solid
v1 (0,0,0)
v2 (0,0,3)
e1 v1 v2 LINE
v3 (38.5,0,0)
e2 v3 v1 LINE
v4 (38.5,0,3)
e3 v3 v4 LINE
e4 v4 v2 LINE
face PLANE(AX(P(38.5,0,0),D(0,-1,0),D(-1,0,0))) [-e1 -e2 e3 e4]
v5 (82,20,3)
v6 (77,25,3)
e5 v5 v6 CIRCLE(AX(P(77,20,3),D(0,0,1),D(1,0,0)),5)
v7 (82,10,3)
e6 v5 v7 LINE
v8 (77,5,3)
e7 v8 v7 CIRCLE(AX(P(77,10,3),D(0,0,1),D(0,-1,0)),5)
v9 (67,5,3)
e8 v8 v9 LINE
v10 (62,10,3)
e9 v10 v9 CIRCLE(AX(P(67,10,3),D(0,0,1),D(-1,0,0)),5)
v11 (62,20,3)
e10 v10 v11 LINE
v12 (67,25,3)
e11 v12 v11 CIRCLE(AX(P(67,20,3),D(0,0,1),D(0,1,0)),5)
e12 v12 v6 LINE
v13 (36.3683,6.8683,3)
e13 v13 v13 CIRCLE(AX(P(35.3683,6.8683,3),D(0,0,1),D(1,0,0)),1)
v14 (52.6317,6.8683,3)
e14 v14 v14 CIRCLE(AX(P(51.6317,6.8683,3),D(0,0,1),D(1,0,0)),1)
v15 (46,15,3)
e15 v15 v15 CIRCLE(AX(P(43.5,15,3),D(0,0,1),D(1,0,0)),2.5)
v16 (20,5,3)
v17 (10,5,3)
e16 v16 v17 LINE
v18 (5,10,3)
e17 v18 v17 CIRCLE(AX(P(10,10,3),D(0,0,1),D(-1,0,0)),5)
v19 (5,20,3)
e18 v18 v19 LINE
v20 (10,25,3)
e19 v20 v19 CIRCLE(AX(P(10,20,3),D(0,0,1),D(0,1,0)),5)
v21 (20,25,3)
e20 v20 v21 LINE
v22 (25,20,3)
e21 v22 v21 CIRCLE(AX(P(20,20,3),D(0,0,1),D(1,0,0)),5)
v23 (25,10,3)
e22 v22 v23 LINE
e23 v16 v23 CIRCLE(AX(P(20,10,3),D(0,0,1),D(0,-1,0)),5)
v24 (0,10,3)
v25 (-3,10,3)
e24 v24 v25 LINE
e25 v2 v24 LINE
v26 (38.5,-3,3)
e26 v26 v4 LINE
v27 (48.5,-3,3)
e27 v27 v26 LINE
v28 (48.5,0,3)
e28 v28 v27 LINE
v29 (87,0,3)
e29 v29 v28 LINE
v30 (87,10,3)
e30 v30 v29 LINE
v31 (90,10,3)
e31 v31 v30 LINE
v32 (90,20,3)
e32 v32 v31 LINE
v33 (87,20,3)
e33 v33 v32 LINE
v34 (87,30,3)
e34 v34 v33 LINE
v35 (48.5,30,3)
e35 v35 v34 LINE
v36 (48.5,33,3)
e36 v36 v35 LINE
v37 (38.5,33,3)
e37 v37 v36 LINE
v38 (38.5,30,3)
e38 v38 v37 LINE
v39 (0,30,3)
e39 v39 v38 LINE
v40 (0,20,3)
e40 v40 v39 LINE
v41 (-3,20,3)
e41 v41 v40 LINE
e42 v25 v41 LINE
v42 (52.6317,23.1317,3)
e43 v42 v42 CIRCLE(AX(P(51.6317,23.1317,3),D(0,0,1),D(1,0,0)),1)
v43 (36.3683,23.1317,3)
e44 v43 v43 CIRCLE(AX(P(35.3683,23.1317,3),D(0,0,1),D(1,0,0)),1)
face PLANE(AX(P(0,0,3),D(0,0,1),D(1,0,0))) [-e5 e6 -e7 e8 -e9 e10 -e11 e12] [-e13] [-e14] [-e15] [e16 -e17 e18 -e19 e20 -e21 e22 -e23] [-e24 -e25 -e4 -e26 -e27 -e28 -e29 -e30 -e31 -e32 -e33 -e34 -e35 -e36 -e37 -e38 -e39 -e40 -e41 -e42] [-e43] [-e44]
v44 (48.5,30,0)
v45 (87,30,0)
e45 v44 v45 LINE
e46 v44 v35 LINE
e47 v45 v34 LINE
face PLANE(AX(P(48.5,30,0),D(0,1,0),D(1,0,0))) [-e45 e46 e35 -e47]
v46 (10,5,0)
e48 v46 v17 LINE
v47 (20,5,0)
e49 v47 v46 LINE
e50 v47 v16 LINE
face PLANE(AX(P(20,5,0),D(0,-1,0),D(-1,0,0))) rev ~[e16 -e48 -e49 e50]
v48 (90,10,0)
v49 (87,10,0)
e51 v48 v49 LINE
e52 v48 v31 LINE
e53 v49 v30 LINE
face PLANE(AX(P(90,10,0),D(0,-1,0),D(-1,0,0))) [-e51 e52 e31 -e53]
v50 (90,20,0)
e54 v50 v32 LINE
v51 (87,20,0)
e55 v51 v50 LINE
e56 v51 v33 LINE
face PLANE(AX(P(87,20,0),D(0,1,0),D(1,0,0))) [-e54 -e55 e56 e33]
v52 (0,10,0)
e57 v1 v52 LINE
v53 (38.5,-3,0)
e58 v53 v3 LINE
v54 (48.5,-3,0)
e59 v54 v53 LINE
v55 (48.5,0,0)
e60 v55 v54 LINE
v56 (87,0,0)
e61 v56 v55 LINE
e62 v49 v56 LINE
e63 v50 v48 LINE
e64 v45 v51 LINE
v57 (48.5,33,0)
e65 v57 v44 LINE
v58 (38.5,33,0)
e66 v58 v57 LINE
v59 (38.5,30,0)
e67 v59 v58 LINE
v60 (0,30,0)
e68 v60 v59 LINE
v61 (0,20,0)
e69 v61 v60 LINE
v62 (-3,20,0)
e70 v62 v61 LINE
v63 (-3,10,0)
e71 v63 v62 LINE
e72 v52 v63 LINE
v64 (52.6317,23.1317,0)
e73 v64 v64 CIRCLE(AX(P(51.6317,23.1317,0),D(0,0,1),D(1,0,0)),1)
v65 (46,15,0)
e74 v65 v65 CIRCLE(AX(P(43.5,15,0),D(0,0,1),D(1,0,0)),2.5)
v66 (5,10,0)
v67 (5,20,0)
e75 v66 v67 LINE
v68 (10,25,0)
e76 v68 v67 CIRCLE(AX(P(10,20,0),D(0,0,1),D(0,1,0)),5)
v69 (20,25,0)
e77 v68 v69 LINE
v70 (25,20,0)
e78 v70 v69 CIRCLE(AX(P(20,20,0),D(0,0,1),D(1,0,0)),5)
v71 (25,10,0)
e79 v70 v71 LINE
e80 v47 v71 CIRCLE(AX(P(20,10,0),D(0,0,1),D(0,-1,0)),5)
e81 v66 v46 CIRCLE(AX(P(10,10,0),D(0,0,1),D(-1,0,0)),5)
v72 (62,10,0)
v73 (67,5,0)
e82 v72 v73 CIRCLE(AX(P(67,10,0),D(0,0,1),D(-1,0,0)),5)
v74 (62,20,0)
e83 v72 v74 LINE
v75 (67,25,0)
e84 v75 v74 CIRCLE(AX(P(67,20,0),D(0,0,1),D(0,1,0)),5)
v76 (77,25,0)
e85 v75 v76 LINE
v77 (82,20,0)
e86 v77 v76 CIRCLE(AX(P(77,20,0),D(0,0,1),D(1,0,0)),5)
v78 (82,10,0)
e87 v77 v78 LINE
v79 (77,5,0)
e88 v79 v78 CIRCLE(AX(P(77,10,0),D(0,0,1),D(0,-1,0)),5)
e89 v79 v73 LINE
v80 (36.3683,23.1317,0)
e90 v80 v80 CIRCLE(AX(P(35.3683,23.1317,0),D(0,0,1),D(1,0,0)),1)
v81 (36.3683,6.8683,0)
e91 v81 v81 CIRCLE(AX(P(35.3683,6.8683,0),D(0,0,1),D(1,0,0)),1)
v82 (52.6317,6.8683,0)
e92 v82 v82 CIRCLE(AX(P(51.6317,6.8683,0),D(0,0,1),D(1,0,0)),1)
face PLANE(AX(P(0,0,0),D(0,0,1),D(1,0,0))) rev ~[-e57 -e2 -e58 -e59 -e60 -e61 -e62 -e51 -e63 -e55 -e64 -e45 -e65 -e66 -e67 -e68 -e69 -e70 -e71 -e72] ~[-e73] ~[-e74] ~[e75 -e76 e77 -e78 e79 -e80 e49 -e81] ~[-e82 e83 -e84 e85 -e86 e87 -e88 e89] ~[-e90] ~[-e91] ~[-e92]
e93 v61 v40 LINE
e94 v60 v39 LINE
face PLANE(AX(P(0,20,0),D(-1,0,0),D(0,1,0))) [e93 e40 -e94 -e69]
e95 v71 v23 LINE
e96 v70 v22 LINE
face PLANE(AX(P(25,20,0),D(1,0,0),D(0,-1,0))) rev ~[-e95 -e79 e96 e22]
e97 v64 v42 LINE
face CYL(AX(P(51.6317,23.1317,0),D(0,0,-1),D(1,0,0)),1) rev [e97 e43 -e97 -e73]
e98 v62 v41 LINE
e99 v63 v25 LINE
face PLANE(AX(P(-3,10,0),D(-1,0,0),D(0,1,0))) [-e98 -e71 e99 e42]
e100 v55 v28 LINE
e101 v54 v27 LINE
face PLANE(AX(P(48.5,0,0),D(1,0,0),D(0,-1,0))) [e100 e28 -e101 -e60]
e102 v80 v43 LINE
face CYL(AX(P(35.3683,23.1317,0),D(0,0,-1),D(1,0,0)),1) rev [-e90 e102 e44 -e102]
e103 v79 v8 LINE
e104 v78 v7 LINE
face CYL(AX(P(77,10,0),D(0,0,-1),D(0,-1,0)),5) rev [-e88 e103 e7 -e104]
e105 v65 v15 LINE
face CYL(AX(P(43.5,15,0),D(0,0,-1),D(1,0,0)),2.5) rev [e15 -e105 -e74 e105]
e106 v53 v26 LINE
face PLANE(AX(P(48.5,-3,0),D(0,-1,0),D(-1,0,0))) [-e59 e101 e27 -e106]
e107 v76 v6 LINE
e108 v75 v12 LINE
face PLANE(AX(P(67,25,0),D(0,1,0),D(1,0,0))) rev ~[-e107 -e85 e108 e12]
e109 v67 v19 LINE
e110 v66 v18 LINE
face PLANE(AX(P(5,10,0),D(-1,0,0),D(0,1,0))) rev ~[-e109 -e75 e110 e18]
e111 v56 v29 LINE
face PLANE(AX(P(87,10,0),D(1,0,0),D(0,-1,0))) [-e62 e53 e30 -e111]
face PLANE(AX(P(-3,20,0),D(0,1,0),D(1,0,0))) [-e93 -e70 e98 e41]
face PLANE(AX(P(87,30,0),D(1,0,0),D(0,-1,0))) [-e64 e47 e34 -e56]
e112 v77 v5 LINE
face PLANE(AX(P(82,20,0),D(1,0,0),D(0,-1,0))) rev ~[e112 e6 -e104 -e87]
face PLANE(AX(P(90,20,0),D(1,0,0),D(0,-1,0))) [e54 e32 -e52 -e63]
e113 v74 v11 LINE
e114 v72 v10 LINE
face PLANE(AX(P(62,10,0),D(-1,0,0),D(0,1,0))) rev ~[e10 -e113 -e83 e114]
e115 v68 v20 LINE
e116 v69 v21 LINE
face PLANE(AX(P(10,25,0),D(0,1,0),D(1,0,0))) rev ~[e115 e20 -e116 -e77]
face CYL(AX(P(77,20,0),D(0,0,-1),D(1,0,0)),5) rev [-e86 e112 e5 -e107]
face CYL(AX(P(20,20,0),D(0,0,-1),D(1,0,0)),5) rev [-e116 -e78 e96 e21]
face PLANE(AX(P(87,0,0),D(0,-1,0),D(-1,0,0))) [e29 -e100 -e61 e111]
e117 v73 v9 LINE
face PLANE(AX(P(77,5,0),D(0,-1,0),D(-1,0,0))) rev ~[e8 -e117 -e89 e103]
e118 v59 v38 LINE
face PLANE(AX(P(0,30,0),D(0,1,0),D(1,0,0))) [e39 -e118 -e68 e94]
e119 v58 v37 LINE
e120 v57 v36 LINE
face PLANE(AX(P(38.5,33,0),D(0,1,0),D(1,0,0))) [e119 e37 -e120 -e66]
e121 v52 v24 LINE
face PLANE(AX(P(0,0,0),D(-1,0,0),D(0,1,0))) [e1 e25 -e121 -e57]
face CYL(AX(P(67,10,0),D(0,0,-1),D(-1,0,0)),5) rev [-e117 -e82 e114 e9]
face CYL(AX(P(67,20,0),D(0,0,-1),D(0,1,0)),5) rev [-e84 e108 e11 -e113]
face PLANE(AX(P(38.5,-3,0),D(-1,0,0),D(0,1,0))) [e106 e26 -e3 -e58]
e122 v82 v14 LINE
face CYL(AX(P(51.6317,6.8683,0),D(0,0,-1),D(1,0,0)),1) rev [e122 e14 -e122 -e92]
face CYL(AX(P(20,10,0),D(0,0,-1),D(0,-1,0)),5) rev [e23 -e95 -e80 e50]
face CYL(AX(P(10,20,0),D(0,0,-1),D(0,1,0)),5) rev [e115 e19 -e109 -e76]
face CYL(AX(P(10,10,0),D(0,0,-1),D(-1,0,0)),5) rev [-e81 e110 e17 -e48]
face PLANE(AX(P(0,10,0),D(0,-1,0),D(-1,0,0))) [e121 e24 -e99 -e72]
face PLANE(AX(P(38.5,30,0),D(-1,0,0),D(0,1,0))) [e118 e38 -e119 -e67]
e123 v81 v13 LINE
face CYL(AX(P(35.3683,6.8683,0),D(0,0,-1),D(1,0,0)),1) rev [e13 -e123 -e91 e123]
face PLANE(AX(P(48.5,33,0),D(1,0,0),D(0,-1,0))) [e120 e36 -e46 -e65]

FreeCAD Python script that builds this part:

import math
import FreeCAD as App
import Part
import Sketcher

V = App.Vector
Q = App.Units.Quantity

doc = App.newDocument("Part")
params = doc.addObject("Spreadsheet::Sheet", "Params")
for row, (alias, value) in enumerate([
    ("sketch1_diameter", "2 mm"),
    ("sketch1_diameter2", "5 mm"),
    ("sketch1_radius", "5 mm"),
    ("sketch1_width", "10 mm"),
    ("sketch1_width2", "3 mm"),
    ("pad1_length", "3 mm"),
], start=1):
    params.set(f"A{row}", alias)
    params.set(f"B{row}", "=" + value)
    params.setAlias(f"B{row}", alias)

body = doc.addObject("PartDesign::Body", "Body")

# Sketch on XY plane
sketch1 = body.newObject("Sketcher::SketchObject", "Sketch")
sketch1.AttachmentSupport = (doc.getObject("XY_Plane"), [""])
sketch1.MapMode = "FlatFace"
sketch1.addGeometry([
    Part.LineSegment(V(0, 10, 0), V(0, 0, 0)),  # 0
    Part.LineSegment(V(0, 0, 0), V(38.5, 0, 0)),  # 1
    Part.LineSegment(V(38.5, 0, 0), V(38.5, -3, 0)),  # 2
    Part.LineSegment(V(38.5, -3, 0), V(48.5, -3, 0)),  # 3
    Part.LineSegment(V(48.5, -3, 0), V(48.5, 0, 0)),  # 4
    Part.LineSegment(V(48.5, 0, 0), V(87, 0, 0)),  # 5
    Part.LineSegment(V(87, 0, 0), V(87, 10, 0)),  # 6
    Part.LineSegment(V(87, 10, 0), V(90, 10, 0)),  # 7
    Part.LineSegment(V(90, 10, 0), V(90, 20, 0)),  # 8
    Part.LineSegment(V(90, 20, 0), V(87, 20, 0)),  # 9
    Part.LineSegment(V(87, 20, 0), V(87, 30, 0)),  # 10
    Part.LineSegment(V(87, 30, 0), V(48.5, 30, 0)),  # 11
    Part.LineSegment(V(48.5, 30, 0), V(48.5, 33, 0)),  # 12
    Part.LineSegment(V(48.5, 33, 0), V(38.5, 33, 0)),  # 13
    Part.LineSegment(V(38.5, 33, 0), V(38.5, 30, 0)),  # 14
    Part.LineSegment(V(38.5, 30, 0), V(0, 30, 0)),  # 15
    Part.LineSegment(V(0, 30, 0), V(0, 20, 0)),  # 16
    Part.LineSegment(V(0, 20, 0), V(-3, 20, 0)),  # 17
    Part.LineSegment(V(-3, 20, 0), V(-3, 10, 0)),  # 18
    Part.LineSegment(V(-3, 10, 0), V(0, 10, 0)),  # 19
    Part.Circle(V(35.4, 6.9, 0), V(0, 0, 1), 1),  # 20
    Part.Circle(V(51.6, 6.9, 0), V(0, 0, 1), 1),  # 21
    Part.ArcOfCircle(Part.Circle(V(10, 20, 0), V(0, 0, 1), 5), math.radians(90), math.radians(180)),  # 22
    Part.LineSegment(V(10, 25, 0), V(20, 25, 0)),  # 23
    Part.ArcOfCircle(Part.Circle(V(20, 20, 0), V(0, 0, 1), 5), math.radians(0), math.radians(90)),  # 24
    Part.LineSegment(V(25, 20, 0), V(25, 10, 0)),  # 25
    Part.ArcOfCircle(Part.Circle(V(20, 10, 0), V(0, 0, 1), 5), math.radians(-90), math.radians(0)),  # 26
    Part.LineSegment(V(20, 5, 0), V(10, 5, 0)),  # 27
    Part.ArcOfCircle(Part.Circle(V(10, 10, 0), V(0, 0, 1), 5), math.radians(180), math.radians(270)),  # 28
    Part.LineSegment(V(5, 10, 0), V(5, 20, 0)),  # 29
    Part.Circle(V(35.4, 23.1, 0), V(0, 0, 1), 1),  # 30
    Part.Circle(V(43.5, 15, 0), V(0, 0, 1), 2.5),  # 31
    Part.Circle(V(51.6, 23.1, 0), V(0, 0, 1), 1),  # 32
    Part.ArcOfCircle(Part.Circle(V(67, 20, 0), V(0, 0, 1), 5), math.radians(90), math.radians(180)),  # 33
    Part.LineSegment(V(67, 25, 0), V(77, 25, 0)),  # 34
    Part.ArcOfCircle(Part.Circle(V(77, 20, 0), V(0, 0, 1), 5), math.radians(0), math.radians(90)),  # 35
    Part.LineSegment(V(82, 20, 0), V(82, 10, 0)),  # 36
    Part.ArcOfCircle(Part.Circle(V(77, 10, 0), V(0, 0, 1), 5), math.radians(-90), math.radians(0)),  # 37
    Part.LineSegment(V(77, 5, 0), V(67, 5, 0)),  # 38
    Part.ArcOfCircle(Part.Circle(V(67, 10, 0), V(0, 0, 1), 5), math.radians(180), math.radians(270)),  # 39
    Part.LineSegment(V(62, 10, 0), V(62, 20, 0)),  # 40
], False)
sketch1.addConstraint([
    Sketcher.Constraint("Coincident", 0, 2, 1, 1),
    Sketcher.Constraint("Coincident", 1, 2, 2, 1),
    Sketcher.Constraint("Coincident", 2, 2, 3, 1),
    Sketcher.Constraint("Coincident", 3, 2, 4, 1),
    Sketcher.Constraint("Coincident", 4, 2, 5, 1),
    Sketcher.Constraint("Coincident", 5, 2, 6, 1),
    Sketcher.Constraint("Coincident", 6, 2, 7, 1),
    Sketcher.Constraint("Coincident", 7, 2, 8, 1),
    Sketcher.Constraint("Coincident", 8, 2, 9, 1),
    Sketcher.Constraint("Coincident", 9, 2, 10, 1),
    Sketcher.Constraint("Coincident", 10, 2, 11, 1),
    Sketcher.Constraint("Coincident", 11, 2, 12, 1),
    Sketcher.Constraint("Coincident", 12, 2, 13, 1),
    Sketcher.Constraint("Coincident", 13, 2, 14, 1),
    Sketcher.Constraint("Coincident", 14, 2, 15, 1),
    Sketcher.Constraint("Coincident", 15, 2, 16, 1),
    Sketcher.Constraint("Coincident", 16, 2, 17, 1),
    Sketcher.Constraint("Coincident", 17, 2, 18, 1),
    Sketcher.Constraint("Coincident", 18, 2, 19, 1),
    Sketcher.Constraint("Coincident", 19, 2, 0, 1),
    Sketcher.Constraint("Tangent", 22, 1, 23, 1),
    Sketcher.Constraint("Tangent", 23, 2, 24, 2),
    Sketcher.Constraint("Tangent", 24, 1, 25, 1),
    Sketcher.Constraint("Tangent", 25, 2, 26, 2),
    Sketcher.Constraint("Tangent", 26, 1, 27, 1),
    Sketcher.Constraint("Tangent", 27, 2, 28, 2),
    Sketcher.Constraint("Tangent", 28, 1, 29, 1),
    Sketcher.Constraint("Tangent", 29, 2, 22, 2),
    Sketcher.Constraint("Tangent", 33, 1, 34, 1),
    Sketcher.Constraint("Tangent", 34, 2, 35, 2),
    Sketcher.Constraint("Tangent", 35, 1, 36, 1),
    Sketcher.Constraint("Tangent", 36, 2, 37, 2),
    Sketcher.Constraint("Tangent", 37, 1, 38, 1),
    Sketcher.Constraint("Tangent", 38, 2, 39, 2),
    Sketcher.Constraint("Tangent", 39, 1, 40, 1),
    Sketcher.Constraint("Tangent", 40, 2, 33, 2),
    Sketcher.Constraint("Vertical", 0),
    Sketcher.Constraint("Horizontal", 1),
    Sketcher.Constraint("Vertical", 2),
    Sketcher.Constraint("Horizontal", 3),
    Sketcher.Constraint("Vertical", 4),
    Sketcher.Constraint("Horizontal", 5),
    Sketcher.Constraint("Vertical", 6),
    Sketcher.Constraint("Horizontal", 7),
    Sketcher.Constraint("Vertical", 8),
    Sketcher.Constraint("Horizontal", 9),
    Sketcher.Constraint("Vertical", 10),
    Sketcher.Constraint("Horizontal", 11),
    Sketcher.Constraint("Vertical", 12),
    Sketcher.Constraint("Horizontal", 13),
    Sketcher.Constraint("Vertical", 14),
    Sketcher.Constraint("Horizontal", 15),
    Sketcher.Constraint("Vertical", 16),
    Sketcher.Constraint("Horizontal", 17),
    Sketcher.Constraint("Vertical", 18),
    Sketcher.Constraint("Horizontal", 19),
    Sketcher.Constraint("Horizontal", 23),
    Sketcher.Constraint("Vertical", 25),
    Sketcher.Constraint("Horizontal", 27),
    Sketcher.Constraint("Vertical", 29),
    Sketcher.Constraint("Horizontal", 34),
    Sketcher.Constraint("Vertical", 36),
    Sketcher.Constraint("Horizontal", 38),
    Sketcher.Constraint("Vertical", 40),
    Sketcher.Constraint("Coincident", 0, 2, -1, 1),
    Sketcher.Constraint("Equal", 20, 21),
    Sketcher.Constraint("Equal", 22, 24),
    Sketcher.Constraint("Equal", 24, 26),
    Sketcher.Constraint("Equal", 26, 28),
    Sketcher.Constraint("Equal", 21, 30),
    Sketcher.Constraint("Equal", 30, 32),
    Sketcher.Constraint("Equal", 28, 33),
    Sketcher.Constraint("Equal", 33, 35),
    Sketcher.Constraint("Equal", 35, 37),
    Sketcher.Constraint("Equal", 37, 39),
    Sketcher.Constraint("PointOnObject", 4, 2, -1),
    Sketcher.Constraint("PointOnObject", 15, 2, -2),
    Sketcher.Constraint("Horizontal", 20, 3, 21, 3),
    Sketcher.Constraint("Horizontal", 30, 3, 32, 3),
    Sketcher.Constraint("Horizontal", 24, 3, 33, 3),
    Sketcher.Constraint("Horizontal", 28, 3, 37, 3),
    Sketcher.Constraint("Horizontal", 39, 3, 6, 2),
    Sketcher.Constraint("Horizontal", 35, 3, 8, 2),
    Sketcher.Constraint("Horizontal", 11, 2, 14, 2),
    Sketcher.Constraint("Horizontal", 9, 2, 16, 2),
    Sketcher.Constraint("Horizontal", 7, 2, 18, 2),
    Sketcher.Constraint("Vertical", 20, 3, 30, 3),
    Sketcher.Constraint("Vertical", 21, 3, 32, 3),
    Sketcher.Constraint("Vertical", 6, 2, 9, 2),
    Sketcher.Constraint("Vertical", 4, 2, 11, 2),
    Sketcher.Constraint("Vertical", 2, 2, 13, 2),
    Sketcher.Constraint("Equal", 1, 5),
    Sketcher.Constraint("Equal", 9, 17),
    Sketcher.Constraint("Equal", 13, 23),
    Sketcher.Constraint("Equal", 27, 34),
    Sketcher.Constraint("Equal", 38, 0),
    Sketcher.Constraint("Equal", 19, 2),
    Sketcher.Constraint("Equal", 6, 8),
    Sketcher.Constraint("Equal", 8, 10),
    Sketcher.Constraint("Equal", 4, 12),
    Sketcher.Constraint("Diameter", 20, Q("2 mm")),
    Sketcher.Constraint("Diameter", 31, Q("5 mm")),
    Sketcher.Constraint("Radius", 22, Q("5 mm")),
    Sketcher.Constraint("DistanceX", 3, 1, 3, 2, Q("10 mm")),
    Sketcher.Constraint("DistanceX", 7, 1, 7, 2, Q("3 mm")),
    Sketcher.Constraint("DistanceX", 1, 1, 1, 2, Q("38.5 mm")),
    Sketcher.Constraint("DistanceX", -1, 1, 22, 3, Q("10 mm")),
    Sketcher.Constraint("DistanceY", -1, 1, 31, 3, Q("15 mm")),
    Sketcher.Constraint("DistanceX", 1, 2, 31, 3, Q("5 mm")),
    Sketcher.Constraint("DistanceX", 37, 3, 5, 2, Q("10 mm")),
    Sketcher.Constraint("DistanceX", -1, 1, 20, 3, Q("35.3683 mm")),
    Sketcher.Constraint("DistanceY", -1, 1, 20, 3, Q("6.8683 mm")),
    Sketcher.Constraint("DistanceX", -1, 1, 21, 3, Q("51.6317 mm")),
    Sketcher.Constraint("DistanceY", -1, 1, 30, 3, Q("23.1317 mm")),
])
sketch1.setExpression("Constraints[100]", "Params.sketch1_diameter")
sketch1.setExpression("Constraints[101]", "Params.sketch1_diameter2")
sketch1.setExpression("Constraints[102]", "Params.sketch1_radius")
sketch1.setExpression("Constraints[103]", "Params.sketch1_width")
sketch1.setExpression("Constraints[104]", "Params.sketch1_width2")
pad1 = body.newObject("PartDesign::Pad", "Pad")
pad1.Profile = sketch1
pad1.setExpression("Length", "Params.pad1_length")

doc.recompute()
